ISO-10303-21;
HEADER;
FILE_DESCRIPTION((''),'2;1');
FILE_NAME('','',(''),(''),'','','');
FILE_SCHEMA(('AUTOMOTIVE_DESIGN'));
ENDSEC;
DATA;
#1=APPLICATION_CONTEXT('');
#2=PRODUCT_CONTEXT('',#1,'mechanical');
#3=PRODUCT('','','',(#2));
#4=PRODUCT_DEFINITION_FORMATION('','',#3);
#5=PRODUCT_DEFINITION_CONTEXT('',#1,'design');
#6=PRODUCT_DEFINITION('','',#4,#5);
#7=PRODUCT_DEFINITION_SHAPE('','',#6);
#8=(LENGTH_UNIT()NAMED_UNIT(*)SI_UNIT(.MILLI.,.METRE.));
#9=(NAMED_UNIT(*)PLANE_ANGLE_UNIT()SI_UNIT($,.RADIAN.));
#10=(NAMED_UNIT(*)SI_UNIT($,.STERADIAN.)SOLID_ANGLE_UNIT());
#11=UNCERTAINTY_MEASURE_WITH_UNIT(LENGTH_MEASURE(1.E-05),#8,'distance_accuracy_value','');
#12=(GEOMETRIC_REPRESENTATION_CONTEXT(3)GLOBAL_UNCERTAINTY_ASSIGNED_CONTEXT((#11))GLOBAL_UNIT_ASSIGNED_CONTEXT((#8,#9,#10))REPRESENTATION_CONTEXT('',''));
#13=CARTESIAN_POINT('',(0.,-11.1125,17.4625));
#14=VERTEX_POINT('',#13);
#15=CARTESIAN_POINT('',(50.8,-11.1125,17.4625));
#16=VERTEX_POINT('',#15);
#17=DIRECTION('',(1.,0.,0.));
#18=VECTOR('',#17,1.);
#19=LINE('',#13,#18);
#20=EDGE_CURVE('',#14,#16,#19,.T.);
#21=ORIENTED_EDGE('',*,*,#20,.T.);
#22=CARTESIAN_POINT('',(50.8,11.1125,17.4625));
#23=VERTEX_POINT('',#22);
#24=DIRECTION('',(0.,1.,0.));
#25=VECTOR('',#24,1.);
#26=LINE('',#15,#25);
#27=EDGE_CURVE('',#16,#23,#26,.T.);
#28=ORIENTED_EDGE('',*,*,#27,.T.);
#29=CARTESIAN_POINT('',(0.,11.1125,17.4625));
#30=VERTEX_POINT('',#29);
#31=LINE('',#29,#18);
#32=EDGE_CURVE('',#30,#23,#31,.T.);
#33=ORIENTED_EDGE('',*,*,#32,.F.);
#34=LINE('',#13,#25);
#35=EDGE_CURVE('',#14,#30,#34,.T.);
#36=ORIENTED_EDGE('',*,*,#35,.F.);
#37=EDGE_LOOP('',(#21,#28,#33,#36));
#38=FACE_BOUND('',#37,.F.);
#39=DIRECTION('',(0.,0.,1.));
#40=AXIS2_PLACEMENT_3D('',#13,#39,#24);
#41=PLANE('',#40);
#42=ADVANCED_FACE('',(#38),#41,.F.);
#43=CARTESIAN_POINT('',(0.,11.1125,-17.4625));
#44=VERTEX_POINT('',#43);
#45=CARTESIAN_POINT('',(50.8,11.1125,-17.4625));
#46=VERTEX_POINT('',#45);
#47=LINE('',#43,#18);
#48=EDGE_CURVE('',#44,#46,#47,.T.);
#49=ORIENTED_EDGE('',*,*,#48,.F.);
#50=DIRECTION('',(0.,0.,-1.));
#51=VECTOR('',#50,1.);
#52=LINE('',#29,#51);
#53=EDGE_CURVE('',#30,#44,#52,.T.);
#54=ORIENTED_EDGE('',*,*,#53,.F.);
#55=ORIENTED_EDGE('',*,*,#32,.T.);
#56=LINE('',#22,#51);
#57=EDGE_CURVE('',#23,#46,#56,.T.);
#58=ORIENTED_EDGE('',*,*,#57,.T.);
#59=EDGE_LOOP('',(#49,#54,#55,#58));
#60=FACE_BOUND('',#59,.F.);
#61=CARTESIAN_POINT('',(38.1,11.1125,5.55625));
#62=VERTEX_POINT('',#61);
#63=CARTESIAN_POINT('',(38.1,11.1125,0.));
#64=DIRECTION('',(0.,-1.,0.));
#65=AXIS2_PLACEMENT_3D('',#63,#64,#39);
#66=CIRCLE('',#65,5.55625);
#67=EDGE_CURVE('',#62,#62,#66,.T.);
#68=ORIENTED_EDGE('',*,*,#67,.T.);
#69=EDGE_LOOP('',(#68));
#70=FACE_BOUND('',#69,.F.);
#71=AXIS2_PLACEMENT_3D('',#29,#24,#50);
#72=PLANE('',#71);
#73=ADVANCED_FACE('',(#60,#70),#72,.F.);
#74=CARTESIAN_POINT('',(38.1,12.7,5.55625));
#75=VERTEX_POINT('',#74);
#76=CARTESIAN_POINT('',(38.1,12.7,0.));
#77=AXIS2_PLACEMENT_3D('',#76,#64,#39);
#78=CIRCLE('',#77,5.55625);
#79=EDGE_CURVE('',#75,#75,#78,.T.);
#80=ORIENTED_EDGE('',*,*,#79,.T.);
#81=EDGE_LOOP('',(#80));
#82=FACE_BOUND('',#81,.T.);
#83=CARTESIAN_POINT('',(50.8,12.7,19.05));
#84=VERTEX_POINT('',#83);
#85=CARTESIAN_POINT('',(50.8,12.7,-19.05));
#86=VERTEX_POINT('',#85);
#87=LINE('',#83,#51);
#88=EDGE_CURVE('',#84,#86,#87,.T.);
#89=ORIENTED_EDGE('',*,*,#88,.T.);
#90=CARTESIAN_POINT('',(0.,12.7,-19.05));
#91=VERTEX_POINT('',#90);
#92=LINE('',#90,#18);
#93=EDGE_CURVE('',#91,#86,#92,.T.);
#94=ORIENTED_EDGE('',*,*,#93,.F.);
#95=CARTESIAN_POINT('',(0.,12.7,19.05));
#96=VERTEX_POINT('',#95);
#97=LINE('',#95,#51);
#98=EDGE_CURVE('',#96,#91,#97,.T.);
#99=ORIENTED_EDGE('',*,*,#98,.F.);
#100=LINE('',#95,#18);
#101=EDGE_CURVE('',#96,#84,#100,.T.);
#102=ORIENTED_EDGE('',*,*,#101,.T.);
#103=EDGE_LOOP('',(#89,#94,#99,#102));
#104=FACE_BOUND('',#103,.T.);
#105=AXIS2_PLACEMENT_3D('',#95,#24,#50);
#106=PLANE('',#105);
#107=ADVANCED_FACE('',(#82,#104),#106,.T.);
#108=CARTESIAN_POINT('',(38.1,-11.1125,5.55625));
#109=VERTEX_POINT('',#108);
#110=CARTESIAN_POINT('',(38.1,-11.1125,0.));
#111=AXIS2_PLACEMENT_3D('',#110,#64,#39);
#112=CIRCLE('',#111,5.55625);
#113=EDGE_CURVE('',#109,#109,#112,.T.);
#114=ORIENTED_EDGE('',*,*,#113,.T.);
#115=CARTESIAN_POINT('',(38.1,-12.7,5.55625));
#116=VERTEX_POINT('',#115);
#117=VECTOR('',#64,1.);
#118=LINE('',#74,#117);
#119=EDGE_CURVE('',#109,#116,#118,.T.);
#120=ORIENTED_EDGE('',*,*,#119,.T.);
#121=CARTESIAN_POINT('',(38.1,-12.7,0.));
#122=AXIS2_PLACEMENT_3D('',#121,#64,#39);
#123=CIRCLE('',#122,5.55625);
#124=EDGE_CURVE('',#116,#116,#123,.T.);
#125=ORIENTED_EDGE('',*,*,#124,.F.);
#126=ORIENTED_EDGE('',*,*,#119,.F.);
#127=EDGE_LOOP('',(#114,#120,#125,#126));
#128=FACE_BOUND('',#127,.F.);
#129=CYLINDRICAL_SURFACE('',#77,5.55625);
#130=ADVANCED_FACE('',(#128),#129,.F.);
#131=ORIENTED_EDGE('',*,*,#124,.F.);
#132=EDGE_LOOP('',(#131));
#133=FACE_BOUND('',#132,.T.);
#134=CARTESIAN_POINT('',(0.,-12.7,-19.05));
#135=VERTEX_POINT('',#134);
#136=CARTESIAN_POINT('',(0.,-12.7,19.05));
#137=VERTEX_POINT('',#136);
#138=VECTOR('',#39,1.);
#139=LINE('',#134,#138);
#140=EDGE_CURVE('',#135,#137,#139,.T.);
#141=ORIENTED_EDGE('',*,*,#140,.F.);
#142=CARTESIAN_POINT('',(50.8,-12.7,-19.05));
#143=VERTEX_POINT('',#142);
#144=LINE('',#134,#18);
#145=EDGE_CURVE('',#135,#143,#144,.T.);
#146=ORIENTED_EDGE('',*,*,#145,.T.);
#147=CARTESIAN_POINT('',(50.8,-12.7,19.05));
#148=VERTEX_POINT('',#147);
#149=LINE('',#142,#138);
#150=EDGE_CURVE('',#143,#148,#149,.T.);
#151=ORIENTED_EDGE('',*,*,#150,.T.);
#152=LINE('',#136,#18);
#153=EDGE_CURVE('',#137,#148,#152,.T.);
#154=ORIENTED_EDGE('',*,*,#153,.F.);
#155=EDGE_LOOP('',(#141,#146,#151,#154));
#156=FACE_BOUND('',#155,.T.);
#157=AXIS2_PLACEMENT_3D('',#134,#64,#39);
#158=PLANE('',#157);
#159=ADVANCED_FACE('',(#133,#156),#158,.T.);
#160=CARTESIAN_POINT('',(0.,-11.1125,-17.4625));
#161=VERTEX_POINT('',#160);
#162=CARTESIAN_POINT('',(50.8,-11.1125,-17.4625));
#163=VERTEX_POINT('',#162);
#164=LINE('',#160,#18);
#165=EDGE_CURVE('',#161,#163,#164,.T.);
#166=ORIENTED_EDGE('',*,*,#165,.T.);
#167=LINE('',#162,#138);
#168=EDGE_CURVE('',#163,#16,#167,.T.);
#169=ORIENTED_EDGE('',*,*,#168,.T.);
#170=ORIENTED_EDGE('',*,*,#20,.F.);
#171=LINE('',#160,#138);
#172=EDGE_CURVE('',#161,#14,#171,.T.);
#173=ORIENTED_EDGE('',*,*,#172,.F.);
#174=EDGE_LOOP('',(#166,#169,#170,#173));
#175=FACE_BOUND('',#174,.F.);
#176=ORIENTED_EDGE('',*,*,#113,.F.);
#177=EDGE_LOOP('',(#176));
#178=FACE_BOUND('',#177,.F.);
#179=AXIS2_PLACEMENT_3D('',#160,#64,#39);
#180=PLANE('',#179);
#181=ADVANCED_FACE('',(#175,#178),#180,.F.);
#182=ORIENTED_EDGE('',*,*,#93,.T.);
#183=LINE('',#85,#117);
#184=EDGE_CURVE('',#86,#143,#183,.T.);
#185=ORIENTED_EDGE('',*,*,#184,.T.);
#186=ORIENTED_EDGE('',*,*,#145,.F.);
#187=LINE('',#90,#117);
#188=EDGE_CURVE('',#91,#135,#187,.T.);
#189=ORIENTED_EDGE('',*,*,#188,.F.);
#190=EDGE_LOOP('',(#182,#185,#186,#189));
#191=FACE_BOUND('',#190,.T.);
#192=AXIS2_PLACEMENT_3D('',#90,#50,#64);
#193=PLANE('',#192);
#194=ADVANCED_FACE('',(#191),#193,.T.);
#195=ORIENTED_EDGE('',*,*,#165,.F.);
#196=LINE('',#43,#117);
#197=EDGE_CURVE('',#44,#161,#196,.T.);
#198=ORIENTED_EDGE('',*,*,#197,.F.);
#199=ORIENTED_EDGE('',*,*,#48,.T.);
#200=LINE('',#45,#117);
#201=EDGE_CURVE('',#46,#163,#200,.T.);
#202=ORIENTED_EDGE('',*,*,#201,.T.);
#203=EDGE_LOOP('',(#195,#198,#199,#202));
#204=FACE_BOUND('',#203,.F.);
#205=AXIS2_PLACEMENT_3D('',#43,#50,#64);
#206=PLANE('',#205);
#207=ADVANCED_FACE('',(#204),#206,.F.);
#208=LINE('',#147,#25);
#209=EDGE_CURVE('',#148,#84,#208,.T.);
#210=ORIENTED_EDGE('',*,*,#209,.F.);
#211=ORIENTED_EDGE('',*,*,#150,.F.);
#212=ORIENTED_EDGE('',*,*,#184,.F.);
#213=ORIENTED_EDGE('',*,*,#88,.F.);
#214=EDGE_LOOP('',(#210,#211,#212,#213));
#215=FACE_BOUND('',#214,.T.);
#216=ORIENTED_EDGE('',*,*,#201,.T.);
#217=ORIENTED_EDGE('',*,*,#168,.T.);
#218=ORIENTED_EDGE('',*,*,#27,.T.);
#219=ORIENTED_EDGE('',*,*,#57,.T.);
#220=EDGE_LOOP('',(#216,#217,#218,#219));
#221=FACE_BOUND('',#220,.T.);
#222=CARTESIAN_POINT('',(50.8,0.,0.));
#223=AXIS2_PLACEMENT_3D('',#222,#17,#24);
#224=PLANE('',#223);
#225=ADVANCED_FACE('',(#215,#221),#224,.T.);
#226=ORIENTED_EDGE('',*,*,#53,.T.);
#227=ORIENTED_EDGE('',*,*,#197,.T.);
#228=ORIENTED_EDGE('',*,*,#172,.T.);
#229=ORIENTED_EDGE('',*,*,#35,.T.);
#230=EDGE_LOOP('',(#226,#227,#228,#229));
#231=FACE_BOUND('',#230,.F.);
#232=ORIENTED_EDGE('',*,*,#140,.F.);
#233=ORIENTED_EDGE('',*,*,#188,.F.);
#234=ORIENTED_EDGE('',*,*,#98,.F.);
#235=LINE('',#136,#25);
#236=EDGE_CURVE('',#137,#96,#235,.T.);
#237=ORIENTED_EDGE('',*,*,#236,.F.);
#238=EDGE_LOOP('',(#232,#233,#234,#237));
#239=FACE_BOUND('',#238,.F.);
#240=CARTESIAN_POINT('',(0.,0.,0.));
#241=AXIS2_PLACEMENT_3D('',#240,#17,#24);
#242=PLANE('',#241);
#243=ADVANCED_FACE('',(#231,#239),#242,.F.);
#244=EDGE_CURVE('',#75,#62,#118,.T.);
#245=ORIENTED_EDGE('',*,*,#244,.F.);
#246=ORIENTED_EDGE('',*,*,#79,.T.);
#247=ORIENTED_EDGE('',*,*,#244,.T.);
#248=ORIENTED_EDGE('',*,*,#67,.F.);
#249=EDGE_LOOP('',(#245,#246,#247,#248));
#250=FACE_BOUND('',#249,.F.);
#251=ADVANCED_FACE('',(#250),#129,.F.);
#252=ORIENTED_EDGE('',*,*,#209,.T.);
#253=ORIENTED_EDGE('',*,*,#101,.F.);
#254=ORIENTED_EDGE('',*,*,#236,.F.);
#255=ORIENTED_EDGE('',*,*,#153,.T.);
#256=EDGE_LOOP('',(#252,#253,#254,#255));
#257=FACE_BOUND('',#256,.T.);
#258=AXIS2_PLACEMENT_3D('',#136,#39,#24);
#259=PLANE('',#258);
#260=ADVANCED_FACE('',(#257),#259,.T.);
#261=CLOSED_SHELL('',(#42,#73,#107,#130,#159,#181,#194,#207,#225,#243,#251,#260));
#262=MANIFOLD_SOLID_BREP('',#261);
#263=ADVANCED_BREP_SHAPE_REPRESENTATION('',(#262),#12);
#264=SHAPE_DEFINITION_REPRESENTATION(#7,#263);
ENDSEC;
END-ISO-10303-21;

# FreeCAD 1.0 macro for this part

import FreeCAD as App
import Part
import Sketcher
Q = App.Units.Quantity


def add_polygon(sketch, points):
    """Adds a closed chain of lines whose ends are joined by coincident constraints."""
    first, n = sketch.GeometryCount, len(points)
    for a, b in zip(points, points[1:] + points[:1]):
        sketch.addGeometry(Part.LineSegment(App.Vector(*a, 0), App.Vector(*b, 0)), False)
    for i in range(n):
        sketch.addConstraint(Sketcher.Constraint("Coincident", first + i, 2, first + (i + 1) % n, 1))

doc = App.newDocument("Part")
body = doc.addObject("PartDesign::Body", "Body")

sketch1 = doc.addObject("Sketcher::SketchObject", "Sketch")
body.addObject(sketch1)
sketch1.AttachmentSupport = (doc.YZ_Plane, [""])
sketch1.MapMode = "FlatFace"
add_polygon(sketch1, [(13, 19), (-13, 19), (-13, -19), (13, -19)])
add_polygon(sketch1, [(-11, -17), (-11, 17), (11, 17), (11, -17)])
sketch1.addConstraint(Sketcher.Constraint("Horizontal", 0))
sketch1.addConstraint(Sketcher.Constraint("Vertical", 1))
sketch1.addConstraint(Sketcher.Constraint("Horizontal", 2))
sketch1.addConstraint(Sketcher.Constraint("Vertical", 3))
sketch1.addConstraint(Sketcher.Constraint("Vertical", 4))
sketch1.addConstraint(Sketcher.Constraint("Horizontal", 5))
sketch1.addConstraint(Sketcher.Constraint("Vertical", 6))
sketch1.addConstraint(Sketcher.Constraint("Horizontal", 7))
sketch1.addConstraint(Sketcher.Constraint("Symmetric", 0, 2, 2, 2, -1, 1))
sketch1.addConstraint(Sketcher.Constraint("Symmetric", 4, 2, 6, 2, -1, 1))
sketch1.addConstraint(Sketcher.Constraint("DistanceX", 0, 2, 0, 1, Q("1 in")))
sketch1.addConstraint(Sketcher.Constraint("DistanceY", 1, 2, 1, 1, Q("1.5 in")))
sketch1.addConstraint(Sketcher.Constraint("DistanceX", 0, 2, 4, 2, Q("0.0625 in")))
sketch1.addConstraint(Sketcher.Constraint("DistanceY", 4, 2, 0, 2, Q("0.0625 in")))
pad1 = doc.addObject("PartDesign::Pad", "Pad")
body.addObject(pad1)
pad1.Profile = sketch1
pad1.Length = Q("2 in")

sketch2 = doc.addObject("Sketcher::SketchObject", "Sketch001")
body.addObject(sketch2)
sketch2.AttachmentSupport = (doc.XZ_Plane, [""])
sketch2.MapMode = "FlatFace"
sketch2.AttachmentOffset = App.Placement(App.Vector(0, 0, -0.5 * 25.4), App.Rotation())
sketch2.addGeometry(Part.Circle(App.Vector(38, 0, 0), App.Vector(0, 0, 1), 6), False)
sketch2.addConstraint(Sketcher.Constraint("PointOnObject", 0, 3, -1))
sketch2.addConstraint(Sketcher.Constraint("Diameter", 0, Q("0.4375 in")))
sketch2.addConstraint(Sketcher.Constraint("DistanceX", -1, 1, 0, 3, Q("1.5 in")))
doc.recompute()
hole = doc.addObject("PartDesign::Hole", "Hole")
body.addObject(hole)
hole.Profile = sketch2
hole.ThreadType = "None"
hole.Diameter = Q("0.4375 in")
hole.DepthType = "ThroughAll"
hole.Reversed = True

doc.recompute()
